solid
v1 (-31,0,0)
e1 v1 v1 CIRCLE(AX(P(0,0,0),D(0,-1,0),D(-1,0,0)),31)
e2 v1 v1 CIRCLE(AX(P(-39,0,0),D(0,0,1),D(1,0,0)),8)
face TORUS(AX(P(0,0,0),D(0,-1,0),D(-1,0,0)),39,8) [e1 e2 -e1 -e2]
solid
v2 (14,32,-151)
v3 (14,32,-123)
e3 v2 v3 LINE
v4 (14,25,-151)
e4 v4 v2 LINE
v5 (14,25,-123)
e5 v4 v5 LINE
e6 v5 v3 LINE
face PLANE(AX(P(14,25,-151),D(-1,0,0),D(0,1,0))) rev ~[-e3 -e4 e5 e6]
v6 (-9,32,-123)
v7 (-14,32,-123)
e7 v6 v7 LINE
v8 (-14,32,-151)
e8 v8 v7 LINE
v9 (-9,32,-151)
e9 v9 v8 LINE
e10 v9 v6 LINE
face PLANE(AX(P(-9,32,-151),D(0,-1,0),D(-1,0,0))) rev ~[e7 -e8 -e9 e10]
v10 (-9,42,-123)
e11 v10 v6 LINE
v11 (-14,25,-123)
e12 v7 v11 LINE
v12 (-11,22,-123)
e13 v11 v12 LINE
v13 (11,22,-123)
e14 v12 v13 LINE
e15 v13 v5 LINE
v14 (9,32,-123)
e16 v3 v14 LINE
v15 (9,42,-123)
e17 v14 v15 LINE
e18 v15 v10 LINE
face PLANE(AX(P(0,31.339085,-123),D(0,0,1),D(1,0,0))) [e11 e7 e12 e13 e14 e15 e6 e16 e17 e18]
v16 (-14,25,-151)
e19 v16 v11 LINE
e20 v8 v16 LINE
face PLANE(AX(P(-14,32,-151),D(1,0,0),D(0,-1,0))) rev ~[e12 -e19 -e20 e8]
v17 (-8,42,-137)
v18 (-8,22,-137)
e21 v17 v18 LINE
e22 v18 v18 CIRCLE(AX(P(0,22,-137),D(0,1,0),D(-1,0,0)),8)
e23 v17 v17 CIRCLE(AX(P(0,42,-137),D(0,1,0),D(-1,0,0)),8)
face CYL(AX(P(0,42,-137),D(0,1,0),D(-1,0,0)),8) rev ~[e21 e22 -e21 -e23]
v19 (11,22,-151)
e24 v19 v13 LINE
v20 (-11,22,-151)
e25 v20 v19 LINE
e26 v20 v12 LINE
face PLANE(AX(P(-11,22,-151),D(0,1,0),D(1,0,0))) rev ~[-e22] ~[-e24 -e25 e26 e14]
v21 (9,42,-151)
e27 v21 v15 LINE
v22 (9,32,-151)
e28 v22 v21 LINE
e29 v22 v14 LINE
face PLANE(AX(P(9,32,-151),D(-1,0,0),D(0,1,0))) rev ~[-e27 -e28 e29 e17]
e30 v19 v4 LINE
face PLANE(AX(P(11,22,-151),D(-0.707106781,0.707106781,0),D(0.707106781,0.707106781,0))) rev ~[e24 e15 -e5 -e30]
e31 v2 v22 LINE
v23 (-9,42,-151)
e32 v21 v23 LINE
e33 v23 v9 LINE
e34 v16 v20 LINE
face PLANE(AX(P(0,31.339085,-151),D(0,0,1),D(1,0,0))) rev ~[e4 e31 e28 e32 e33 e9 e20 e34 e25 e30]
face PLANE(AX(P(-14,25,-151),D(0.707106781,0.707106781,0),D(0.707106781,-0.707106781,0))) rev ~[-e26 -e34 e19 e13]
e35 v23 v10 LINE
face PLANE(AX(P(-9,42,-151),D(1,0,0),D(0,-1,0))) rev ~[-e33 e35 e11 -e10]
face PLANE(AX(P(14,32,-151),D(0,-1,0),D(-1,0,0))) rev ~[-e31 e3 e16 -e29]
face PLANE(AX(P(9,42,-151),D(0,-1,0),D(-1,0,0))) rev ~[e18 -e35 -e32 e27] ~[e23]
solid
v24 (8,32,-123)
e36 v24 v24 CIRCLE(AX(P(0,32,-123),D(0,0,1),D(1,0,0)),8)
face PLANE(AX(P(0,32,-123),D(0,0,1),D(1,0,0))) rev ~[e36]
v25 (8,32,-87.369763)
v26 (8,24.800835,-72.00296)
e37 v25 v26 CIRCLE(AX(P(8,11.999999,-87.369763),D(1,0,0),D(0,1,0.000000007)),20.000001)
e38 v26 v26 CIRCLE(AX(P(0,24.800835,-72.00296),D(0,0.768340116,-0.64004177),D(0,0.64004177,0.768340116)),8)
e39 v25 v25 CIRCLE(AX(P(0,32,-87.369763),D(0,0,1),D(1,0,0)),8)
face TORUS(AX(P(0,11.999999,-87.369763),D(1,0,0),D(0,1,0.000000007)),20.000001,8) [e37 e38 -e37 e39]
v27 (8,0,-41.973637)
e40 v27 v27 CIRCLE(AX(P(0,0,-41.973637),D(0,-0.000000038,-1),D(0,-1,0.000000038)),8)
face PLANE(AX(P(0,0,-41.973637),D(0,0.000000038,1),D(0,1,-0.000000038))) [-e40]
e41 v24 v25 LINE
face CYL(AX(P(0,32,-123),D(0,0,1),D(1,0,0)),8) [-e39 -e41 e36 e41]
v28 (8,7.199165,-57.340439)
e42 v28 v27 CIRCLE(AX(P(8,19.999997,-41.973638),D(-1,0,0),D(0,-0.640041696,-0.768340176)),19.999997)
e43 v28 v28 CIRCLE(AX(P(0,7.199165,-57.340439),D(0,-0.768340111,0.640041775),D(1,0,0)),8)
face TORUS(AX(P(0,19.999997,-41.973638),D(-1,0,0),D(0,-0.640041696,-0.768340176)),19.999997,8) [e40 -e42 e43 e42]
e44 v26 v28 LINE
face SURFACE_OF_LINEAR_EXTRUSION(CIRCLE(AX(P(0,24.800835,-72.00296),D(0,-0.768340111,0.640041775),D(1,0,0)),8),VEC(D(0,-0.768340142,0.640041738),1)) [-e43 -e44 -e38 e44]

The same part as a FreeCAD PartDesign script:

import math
import FreeCAD as App
import Part
import Sketcher

V = App.Vector

doc = App.newDocument("Part")
body = doc.addObject("PartDesign::Body", "Body")

# Sketch on XY plane
sketch1 = doc.addObject("Sketcher::SketchObject", "Sketch")
body.addObject(sketch1)
sketch1.AttachmentSupport = (doc.XY_Plane, [""])
sketch1.MapMode = "FlatFace"
sketch1.addGeometry(Part.Circle(V(-39, 0, 0), V(0, 0, 1), 8), False)
sketch1.addConstraint([
    Sketcher.Constraint("PointOnObject", 0, 3, -1),
    Sketcher.Constraint("Diameter", 0, 16.0),
    Sketcher.Constraint("DistanceX", 0, 3, -1, 1, 39.0),
])
revolution = doc.addObject("PartDesign::Revolution", "Revolution")
body.addObject(revolution)
revolution.Profile = sketch1
revolution.ReferenceAxis = (sketch1, ["V_Axis"])
revolution.Angle = 360
body2 = doc.addObject("PartDesign::Body", "Body001")

# Sketch on XY plane
sketch2 = doc.addObject("Sketcher::SketchObject", "Sketch001")
body2.addObject(sketch2)
sketch2.AttachmentSupport = (doc.getObject("XY_Plane001"), [""])
sketch2.MapMode = "FlatFace"
sketch2.AttachmentOffset = App.Placement(V(0, 0, -151), App.Rotation())
sketch2.addGeometry([
    Part.LineSegment(V(-11, 22, 0), V(11, 22, 0)),  # 0
    Part.LineSegment(V(11, 22, 0), V(14, 25, 0)),  # 1
    Part.LineSegment(V(14, 25, 0), V(14, 32, 0)),  # 2
    Part.LineSegment(V(14, 32, 0), V(9, 32, 0)),  # 3
    Part.LineSegment(V(9, 32, 0), V(9, 42, 0)),  # 4
    Part.LineSegment(V(9, 42, 0), V(-9, 42, 0)),  # 5
    Part.LineSegment(V(-9, 42, 0), V(-9, 32, 0)),  # 6
    Part.LineSegment(V(-9, 32, 0), V(-14, 32, 0)),  # 7
    Part.LineSegment(V(-14, 32, 0), V(-14, 25, 0)),  # 8
    Part.LineSegment(V(-14, 25, 0), V(-11, 22, 0)),  # 9
], False)
sketch2.addConstraint([
    Sketcher.Constraint("Coincident", 0, 2, 1, 1),
    Sketcher.Constraint("Coincident", 1, 2, 2, 1),
    Sketcher.Constraint("Coincident", 2, 2, 3, 1),
    Sketcher.Constraint("Coincident", 3, 2, 4, 1),
    Sketcher.Constraint("Coincident", 4, 2, 5, 1),
    Sketcher.Constraint("Coincident", 5, 2, 6, 1),
    Sketcher.Constraint("Coincident", 6, 2, 7, 1),
    Sketcher.Constraint("Coincident", 7, 2, 8, 1),
    Sketcher.Constraint("Coincident", 8, 2, 9, 1),
    Sketcher.Constraint("Coincident", 9, 2, 0, 1),
    Sketcher.Constraint("Horizontal", 0),
    Sketcher.Constraint("Vertical", 2),
    Sketcher.Constraint("Horizontal", 3),
    Sketcher.Constraint("Vertical", 4),
    Sketcher.Constraint("Horizontal", 5),
    Sketcher.Constraint("Vertical", 6),
    Sketcher.Constraint("Horizontal", 7),
    Sketcher.Constraint("Vertical", 8),
    Sketcher.Constraint("Symmetric", 3, 2, 6, 2, -2),
    Sketcher.Constraint("Symmetric", 1, 2, 8, 2, -2),
    Sketcher.Constraint("Perpendicular", 1, 9),
    Sketcher.Constraint("Equal", 1, 9),
    Sketcher.Constraint("DistanceX", 0, 1, 0, 2, 22.0),
    Sketcher.Constraint("DistanceX", 3, 2, 3, 1, 5.0),
    Sketcher.Constraint("DistanceX", 5, 2, 5, 1, 18.0),
    Sketcher.Constraint("DistanceY", 2, 1, 2, 2, 7.0),
    Sketcher.Constraint("DistanceY", 4, 1, 4, 2, 10.0),
    Sketcher.Constraint("DistanceY", -1, 1, 0, 2, 22.0),
])
pad1 = doc.addObject("PartDesign::Pad", "Pad")
body2.addObject(pad1)
pad1.Profile = sketch2
pad1.Length = 28

# Sketch on XZ plane
sketch3 = doc.addObject("Sketcher::SketchObject", "Sketch002")
body2.addObject(sketch3)
sketch3.AttachmentSupport = (doc.getObject("XZ_Plane001"), [""])
sketch3.MapMode = "FlatFace"
sketch3.AttachmentOffset = App.Placement(V(0, 0, -42), App.Rotation())
sketch3.addGeometry(Part.Circle(V(0, -137, 0), V(0, 0, 1), 8), False)
sketch3.addConstraint([
    Sketcher.Constraint("PointOnObject", 0, 3, -2),
    Sketcher.Constraint("Diameter", 0, 16.0),
    Sketcher.Constraint("DistanceY", 0, 3, -1, 1, 137.0),
])
pocket1 = doc.addObject("PartDesign::Pocket", "Pocket")
body2.addObject(pocket1)
pocket1.Profile = sketch3
pocket1.Length = 25
pocket1.Reversed = True
body3 = doc.addObject("PartDesign::Body", "Body002")

# Sketch on XY plane
sketch4 = doc.addObject("Sketcher::SketchObject", "Sketch003")
body3.addObject(sketch4)
sketch4.AttachmentSupport = (doc.getObject("XY_Plane002"), [""])
sketch4.MapMode = "FlatFace"
sketch4.AttachmentOffset = App.Placement(V(0, 0, -123), App.Rotation())
sketch4.addGeometry(Part.Circle(V(0, 32, 0), V(0, 0, 1), 8), False)
sketch4.addConstraint([
    Sketcher.Constraint("PointOnObject", 0, 3, -2),
    Sketcher.Constraint("Diameter", 0, 16.0),
    Sketcher.Constraint("DistanceY", -1, 1, 0, 3, 32.0),
])

# Sketch on YZ plane
sketch5 = doc.addObject("Sketcher::SketchObject", "Sketch004")
body3.addObject(sketch5)
sketch5.AttachmentSupport = (doc.getObject("YZ_Plane002"), [""])
sketch5.MapMode = "FlatFace"
sketch5.addGeometry([
    Part.LineSegment(V(32, -123, 0), V(32, -87, 0)),
    Part.ArcOfCircle(Part.Circle(V(12, -87, 0), V(0, 0, 1), 20), math.radians(0), math.radians(50)),
    Part.LineSegment(V(25, -72, 0), V(7, -57, 0)),
    Part.ArcOfCircle(Part.Circle(V(20, -42, 0), V(0, 0, 1), 20), math.radians(180), math.radians(230)),
], False)
sketch5.addConstraint([
    Sketcher.Constraint("Tangent", 0, 2, 1, 1),
    Sketcher.Constraint("Tangent", 1, 2, 2, 1),
    Sketcher.Constraint("Tangent", 2, 2, 3, 2),
    Sketcher.Constraint("Vertical", 0),
    Sketcher.Constraint("PointOnObject", 3, 1, -2),
    Sketcher.Constraint("Radius", 1, 20.000001),
    Sketcher.Constraint("DistanceX", -1, 1, 1, 3, 11.999999),
    Sketcher.Constraint("DistanceY", 0, 1, -1, 1, 123.0),
    Sketcher.Constraint("DistanceX", 1, 3, 3, 3, 7.999998),
    Sketcher.Constraint("DistanceY", 2, 2, 3, 3, 15.366801),
    Sketcher.Constraint("DistanceY", 0, 1, 0, 2, 35.630237),
    Sketcher.Constraint("DistanceY", 3, 1, -1, 1, 41.973637),
])
doc.recompute()

additivepipe = doc.addObject("PartDesign::AdditivePipe", "AdditivePipe")
body3.addObject(additivepipe)
additivepipe.Profile = sketch4
additivepipe.Spine = (sketch5, ["Edge1", "Edge2", "Edge3", "Edge4"])

doc.recompute()
